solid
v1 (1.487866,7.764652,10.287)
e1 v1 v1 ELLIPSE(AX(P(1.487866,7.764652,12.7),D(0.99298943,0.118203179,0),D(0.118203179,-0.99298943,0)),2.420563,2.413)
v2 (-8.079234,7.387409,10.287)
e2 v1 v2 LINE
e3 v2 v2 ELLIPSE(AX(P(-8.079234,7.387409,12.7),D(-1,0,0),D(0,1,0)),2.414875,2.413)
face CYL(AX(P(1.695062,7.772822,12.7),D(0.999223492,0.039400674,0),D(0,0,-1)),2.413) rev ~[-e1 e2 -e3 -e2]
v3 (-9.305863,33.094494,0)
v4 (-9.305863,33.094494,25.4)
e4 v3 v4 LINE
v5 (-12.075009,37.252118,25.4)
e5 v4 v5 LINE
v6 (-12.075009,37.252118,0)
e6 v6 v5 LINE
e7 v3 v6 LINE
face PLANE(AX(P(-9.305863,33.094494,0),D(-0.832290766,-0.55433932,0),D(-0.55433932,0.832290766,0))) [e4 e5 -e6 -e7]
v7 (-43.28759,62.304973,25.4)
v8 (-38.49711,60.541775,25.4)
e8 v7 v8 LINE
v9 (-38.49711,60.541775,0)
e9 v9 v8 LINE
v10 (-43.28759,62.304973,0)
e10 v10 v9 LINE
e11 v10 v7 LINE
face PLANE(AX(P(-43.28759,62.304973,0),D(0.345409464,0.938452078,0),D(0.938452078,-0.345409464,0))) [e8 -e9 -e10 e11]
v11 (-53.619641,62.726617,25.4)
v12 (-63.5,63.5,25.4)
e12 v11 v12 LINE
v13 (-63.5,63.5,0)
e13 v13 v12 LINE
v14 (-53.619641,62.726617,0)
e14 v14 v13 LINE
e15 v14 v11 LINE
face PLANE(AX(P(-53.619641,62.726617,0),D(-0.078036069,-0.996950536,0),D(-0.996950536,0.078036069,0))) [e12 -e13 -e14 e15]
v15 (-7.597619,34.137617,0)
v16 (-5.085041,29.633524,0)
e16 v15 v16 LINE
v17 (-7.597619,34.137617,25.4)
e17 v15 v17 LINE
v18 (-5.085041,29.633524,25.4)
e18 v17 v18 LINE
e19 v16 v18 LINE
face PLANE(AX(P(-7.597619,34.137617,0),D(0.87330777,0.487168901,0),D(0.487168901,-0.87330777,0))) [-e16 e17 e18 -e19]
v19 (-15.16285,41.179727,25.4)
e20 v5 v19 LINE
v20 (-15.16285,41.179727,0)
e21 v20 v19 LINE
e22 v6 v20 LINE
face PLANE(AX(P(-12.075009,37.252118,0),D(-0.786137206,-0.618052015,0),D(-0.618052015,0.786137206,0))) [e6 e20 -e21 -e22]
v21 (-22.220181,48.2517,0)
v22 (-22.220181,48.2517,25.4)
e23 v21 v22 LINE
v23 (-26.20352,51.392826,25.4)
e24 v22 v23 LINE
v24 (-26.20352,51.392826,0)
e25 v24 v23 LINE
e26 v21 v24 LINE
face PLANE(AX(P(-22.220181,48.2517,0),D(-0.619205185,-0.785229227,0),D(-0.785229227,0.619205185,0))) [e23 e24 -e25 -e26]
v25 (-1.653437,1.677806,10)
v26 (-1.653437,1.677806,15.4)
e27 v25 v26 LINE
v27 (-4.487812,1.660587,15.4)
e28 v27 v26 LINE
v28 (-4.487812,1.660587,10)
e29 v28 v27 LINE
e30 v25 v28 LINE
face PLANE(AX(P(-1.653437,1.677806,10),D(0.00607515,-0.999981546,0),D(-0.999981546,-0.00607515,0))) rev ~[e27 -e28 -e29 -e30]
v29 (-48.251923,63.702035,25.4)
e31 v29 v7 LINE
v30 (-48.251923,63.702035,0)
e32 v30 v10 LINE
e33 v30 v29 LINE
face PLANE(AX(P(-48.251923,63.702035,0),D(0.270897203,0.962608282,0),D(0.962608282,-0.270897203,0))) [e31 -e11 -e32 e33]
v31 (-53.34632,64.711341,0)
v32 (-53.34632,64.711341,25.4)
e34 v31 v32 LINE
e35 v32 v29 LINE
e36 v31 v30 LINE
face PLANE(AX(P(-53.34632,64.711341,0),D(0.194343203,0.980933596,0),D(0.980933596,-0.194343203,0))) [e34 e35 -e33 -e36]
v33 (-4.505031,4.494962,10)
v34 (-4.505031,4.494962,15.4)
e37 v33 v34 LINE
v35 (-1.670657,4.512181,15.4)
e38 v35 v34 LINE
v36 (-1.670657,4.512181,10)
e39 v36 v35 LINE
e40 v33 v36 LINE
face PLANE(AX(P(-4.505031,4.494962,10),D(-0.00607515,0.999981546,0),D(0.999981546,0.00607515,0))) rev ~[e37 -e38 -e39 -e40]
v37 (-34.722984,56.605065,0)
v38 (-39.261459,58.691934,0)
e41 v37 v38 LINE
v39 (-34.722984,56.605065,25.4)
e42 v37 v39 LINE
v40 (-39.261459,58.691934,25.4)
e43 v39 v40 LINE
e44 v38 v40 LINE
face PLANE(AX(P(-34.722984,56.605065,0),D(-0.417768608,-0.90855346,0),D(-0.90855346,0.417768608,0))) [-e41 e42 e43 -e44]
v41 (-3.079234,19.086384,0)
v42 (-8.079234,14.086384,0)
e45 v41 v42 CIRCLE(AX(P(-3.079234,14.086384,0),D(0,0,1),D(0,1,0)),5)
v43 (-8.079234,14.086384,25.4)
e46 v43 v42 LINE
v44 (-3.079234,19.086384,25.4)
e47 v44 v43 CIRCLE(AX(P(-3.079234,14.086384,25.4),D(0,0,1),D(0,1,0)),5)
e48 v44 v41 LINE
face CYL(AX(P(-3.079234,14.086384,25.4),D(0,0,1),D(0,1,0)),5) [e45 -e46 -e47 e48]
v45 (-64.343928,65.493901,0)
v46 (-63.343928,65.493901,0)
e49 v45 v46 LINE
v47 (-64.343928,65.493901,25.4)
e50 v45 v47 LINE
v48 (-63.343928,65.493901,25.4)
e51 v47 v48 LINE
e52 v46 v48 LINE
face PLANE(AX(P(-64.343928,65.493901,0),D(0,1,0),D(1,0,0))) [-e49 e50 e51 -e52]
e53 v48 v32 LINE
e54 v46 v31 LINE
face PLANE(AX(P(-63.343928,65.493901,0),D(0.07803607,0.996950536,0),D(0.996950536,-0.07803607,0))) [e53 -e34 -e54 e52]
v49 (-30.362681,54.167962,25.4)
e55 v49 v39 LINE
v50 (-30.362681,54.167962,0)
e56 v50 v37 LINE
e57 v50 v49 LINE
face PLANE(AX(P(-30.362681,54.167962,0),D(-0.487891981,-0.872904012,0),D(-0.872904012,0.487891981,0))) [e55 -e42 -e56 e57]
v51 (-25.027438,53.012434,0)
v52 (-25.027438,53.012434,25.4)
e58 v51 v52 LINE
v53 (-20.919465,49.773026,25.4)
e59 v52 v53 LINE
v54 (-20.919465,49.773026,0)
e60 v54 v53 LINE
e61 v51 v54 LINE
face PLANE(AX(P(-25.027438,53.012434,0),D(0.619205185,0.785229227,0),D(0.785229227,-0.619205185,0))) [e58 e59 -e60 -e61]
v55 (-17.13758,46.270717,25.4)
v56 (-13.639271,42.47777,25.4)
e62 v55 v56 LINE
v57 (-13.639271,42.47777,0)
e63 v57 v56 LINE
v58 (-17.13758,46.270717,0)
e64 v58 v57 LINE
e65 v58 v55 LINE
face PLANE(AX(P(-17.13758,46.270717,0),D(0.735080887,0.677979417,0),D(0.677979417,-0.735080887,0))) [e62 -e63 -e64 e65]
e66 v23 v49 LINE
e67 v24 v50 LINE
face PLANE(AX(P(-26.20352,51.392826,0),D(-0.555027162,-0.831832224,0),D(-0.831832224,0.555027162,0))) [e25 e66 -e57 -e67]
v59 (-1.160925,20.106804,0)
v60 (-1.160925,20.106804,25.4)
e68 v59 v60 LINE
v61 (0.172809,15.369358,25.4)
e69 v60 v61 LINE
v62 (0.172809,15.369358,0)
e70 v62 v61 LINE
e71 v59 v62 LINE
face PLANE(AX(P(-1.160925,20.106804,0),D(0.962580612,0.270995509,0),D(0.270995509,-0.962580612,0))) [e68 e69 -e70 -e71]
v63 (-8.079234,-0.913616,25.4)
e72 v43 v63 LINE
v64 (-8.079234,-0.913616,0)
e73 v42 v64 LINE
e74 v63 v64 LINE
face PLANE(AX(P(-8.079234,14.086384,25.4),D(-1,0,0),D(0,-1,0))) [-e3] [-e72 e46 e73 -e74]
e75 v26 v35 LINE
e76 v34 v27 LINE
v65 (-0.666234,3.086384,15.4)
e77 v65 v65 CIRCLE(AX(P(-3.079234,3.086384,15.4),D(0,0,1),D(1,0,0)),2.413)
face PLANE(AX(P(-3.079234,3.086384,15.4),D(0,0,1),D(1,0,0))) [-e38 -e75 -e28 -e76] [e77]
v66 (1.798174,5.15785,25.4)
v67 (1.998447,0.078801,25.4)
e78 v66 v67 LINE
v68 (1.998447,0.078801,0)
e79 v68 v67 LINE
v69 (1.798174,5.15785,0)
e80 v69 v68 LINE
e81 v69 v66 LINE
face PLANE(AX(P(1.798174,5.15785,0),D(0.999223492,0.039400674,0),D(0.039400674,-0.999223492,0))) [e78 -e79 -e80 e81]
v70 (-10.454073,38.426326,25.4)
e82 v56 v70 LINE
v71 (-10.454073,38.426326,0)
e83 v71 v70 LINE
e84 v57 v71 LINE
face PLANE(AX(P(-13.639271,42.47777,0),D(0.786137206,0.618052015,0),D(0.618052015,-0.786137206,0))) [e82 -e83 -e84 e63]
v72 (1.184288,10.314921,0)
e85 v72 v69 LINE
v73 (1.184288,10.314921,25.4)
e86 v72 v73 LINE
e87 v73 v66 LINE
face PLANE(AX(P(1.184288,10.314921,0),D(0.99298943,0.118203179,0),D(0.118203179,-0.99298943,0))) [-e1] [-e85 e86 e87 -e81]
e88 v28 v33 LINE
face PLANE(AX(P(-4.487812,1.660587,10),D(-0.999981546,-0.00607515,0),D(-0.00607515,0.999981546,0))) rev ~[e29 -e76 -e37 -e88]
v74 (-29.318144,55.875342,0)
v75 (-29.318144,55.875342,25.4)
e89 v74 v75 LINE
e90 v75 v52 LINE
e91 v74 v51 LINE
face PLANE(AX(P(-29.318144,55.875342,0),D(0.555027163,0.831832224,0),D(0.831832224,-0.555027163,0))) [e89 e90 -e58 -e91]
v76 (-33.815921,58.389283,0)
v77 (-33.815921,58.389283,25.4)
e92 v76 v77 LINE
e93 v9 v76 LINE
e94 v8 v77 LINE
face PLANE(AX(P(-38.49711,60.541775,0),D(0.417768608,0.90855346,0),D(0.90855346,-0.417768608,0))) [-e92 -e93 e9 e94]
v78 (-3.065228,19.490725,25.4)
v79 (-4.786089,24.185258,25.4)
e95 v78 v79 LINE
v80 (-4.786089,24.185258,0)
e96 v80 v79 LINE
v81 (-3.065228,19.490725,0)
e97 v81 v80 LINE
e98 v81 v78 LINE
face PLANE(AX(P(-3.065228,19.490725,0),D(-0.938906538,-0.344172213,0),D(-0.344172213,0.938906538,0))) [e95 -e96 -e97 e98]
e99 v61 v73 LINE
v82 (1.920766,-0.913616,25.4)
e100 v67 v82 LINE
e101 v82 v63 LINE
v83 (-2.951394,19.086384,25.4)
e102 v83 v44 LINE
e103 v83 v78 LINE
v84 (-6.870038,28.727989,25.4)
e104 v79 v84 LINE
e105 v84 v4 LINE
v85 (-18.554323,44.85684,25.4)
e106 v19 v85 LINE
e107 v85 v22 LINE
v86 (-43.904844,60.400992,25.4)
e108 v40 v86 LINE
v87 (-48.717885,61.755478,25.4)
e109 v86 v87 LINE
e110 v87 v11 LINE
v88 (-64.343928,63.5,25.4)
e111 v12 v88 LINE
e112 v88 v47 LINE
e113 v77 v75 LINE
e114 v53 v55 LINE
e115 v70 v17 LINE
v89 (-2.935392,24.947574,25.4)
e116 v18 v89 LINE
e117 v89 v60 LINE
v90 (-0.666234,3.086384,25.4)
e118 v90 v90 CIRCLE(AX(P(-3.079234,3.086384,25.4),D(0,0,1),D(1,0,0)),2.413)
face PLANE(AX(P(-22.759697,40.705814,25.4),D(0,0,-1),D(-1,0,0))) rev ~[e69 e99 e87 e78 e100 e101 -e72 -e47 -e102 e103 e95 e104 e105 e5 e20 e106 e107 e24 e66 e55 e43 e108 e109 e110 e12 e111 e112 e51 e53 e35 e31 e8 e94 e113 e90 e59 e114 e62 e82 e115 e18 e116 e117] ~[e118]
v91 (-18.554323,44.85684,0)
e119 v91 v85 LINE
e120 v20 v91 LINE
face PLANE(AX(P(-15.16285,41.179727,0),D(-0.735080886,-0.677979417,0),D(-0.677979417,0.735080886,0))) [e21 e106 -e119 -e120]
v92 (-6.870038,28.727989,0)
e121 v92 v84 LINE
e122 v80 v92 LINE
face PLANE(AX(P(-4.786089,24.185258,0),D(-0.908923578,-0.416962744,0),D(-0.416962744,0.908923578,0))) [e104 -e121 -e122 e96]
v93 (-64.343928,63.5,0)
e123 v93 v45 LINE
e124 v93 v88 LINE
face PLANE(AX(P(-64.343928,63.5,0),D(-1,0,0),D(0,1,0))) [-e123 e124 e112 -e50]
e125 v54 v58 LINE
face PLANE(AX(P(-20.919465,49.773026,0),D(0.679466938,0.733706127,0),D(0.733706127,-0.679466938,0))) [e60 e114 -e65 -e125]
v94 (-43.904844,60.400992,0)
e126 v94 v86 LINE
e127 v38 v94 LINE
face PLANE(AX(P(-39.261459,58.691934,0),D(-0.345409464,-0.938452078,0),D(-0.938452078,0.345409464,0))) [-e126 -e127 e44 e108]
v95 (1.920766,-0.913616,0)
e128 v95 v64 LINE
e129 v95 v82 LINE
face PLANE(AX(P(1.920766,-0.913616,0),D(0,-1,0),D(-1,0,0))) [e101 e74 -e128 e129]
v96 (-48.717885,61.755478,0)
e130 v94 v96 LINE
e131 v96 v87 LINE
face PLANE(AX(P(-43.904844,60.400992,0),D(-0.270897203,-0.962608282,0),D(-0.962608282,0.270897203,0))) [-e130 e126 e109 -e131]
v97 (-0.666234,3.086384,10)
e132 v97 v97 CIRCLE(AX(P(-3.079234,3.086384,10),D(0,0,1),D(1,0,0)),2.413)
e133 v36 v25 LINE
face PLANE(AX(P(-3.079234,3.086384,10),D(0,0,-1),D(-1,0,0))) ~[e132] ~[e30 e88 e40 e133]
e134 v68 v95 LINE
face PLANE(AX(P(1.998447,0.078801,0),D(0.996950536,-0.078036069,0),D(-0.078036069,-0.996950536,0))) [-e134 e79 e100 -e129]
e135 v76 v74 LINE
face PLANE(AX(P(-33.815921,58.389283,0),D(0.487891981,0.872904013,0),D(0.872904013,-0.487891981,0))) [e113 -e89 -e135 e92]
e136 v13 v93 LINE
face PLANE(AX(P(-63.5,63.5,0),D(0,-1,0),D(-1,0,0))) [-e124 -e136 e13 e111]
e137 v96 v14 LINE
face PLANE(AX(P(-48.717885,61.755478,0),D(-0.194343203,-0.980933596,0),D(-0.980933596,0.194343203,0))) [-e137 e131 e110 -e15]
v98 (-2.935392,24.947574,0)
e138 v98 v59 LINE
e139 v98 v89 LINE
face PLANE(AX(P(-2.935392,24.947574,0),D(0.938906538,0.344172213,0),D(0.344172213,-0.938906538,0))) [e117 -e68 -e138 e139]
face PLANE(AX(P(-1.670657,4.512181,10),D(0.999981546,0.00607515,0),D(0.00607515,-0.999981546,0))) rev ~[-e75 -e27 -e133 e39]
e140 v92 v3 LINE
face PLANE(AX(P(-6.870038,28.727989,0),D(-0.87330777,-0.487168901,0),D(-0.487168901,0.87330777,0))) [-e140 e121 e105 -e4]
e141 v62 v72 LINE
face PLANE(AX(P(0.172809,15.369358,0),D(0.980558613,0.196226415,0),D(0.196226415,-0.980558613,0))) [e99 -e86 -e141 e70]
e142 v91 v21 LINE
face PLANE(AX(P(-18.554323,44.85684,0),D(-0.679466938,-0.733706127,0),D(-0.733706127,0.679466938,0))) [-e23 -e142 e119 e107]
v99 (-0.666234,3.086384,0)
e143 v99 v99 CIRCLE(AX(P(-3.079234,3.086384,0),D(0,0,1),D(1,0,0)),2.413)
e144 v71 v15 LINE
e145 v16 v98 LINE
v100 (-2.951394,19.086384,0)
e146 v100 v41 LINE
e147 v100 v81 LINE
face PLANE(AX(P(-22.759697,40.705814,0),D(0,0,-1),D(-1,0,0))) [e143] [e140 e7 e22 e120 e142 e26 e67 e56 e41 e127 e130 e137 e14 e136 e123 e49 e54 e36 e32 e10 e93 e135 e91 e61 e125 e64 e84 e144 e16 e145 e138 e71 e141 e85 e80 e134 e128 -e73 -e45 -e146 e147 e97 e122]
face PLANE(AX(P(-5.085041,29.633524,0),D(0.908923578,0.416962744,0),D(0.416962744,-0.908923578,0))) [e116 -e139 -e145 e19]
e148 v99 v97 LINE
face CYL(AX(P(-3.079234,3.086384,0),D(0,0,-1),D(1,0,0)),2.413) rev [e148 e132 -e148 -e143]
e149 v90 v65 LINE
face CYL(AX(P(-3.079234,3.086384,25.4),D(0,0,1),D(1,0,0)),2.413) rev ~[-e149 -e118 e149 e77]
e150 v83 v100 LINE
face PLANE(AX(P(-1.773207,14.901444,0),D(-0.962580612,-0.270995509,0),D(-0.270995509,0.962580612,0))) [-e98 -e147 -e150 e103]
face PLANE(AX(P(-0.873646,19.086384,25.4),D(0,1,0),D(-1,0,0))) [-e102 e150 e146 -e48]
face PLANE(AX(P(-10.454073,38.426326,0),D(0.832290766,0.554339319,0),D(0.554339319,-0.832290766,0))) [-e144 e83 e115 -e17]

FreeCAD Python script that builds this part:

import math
import FreeCAD as App
import Part
import Sketcher


def add_polygon(sketch, points):
    """Adds a closed chain of lines whose ends are joined by coincident constraints."""
    first, n = sketch.GeometryCount, len(points)
    for a, b in zip(points, points[1:] + points[:1]):
        sketch.addGeometry(Part.LineSegment(App.Vector(*a, 0), App.Vector(*b, 0)), False)
    for i in range(n):
        sketch.addConstraint(Sketcher.Constraint("Coincident", first + i, 2, first + (i + 1) % n, 1))

doc = App.newDocument("Part")
params = doc.addObject("Spreadsheet::Sheet", "Params")
for row, (alias, value) in enumerate([
    ("sketch1_width", "1 mm"),
    ("sketch1_length", "5 mm"),
    ("pad1_length", "25.4 mm"),
    ("sketch2_radius", "5 mm"),
    ("sketch2_width", "10 mm"),
    ("sketch2_height", "15 mm"),
    ("pad2_length", "25.4 mm"),
    ("pocket1_length", "10 mm"),
], start=1):
    params.set(f"A{row}", alias)
    params.set(f"B{row}", "=" + value)
    params.setAlias(f"B{row}", alias)

body = doc.addObject("PartDesign::Body", "Body")

sketch1 = body.newObject("Sketcher::SketchObject", "Sketch")
sketch1.AttachmentSupport = (doc.getObject("XY_Plane"), [""])
sketch1.MapMode = "FlatFace"
add_polygon(sketch1, [(-0.2, 5), (0, 0), (0, -0.9), (1.9, -0.9), (2, 0.1), (1.8, 5.2), (1.2, 10.3), (0.2, 15.4), (-1.2, 20.1), (-2.9, 24.9), (-5.1, 29.6), (-7.6, 34.1), (-10.5, 38.4), (-13.6, 42.5), (-17.1, 46.3), (-20.9, 49.8), (-25, 53), (-29.3, 55.9), (-33.8, 58.4), (-38.5, 60.5), (-43.3, 62.3), (-48.3, 63.7), (-53.3, 64.7), (-63.3, 65.5), (-64.3, 65.5), (-64.3, 63.5), (-63.5, 63.5), (-53.6, 62.7), (-48.7, 61.8), (-43.9, 60.4), (-39.3, 58.7), (-34.7, 56.6), (-30.4, 54.2), (-26.2, 51.4), (-22.2, 48.3), (-18.6, 44.9), (-15.2, 41.2), (-12.1, 37.3), (-9.3, 33.1), (-6.9, 28.7), (-4.8, 24.2), (-3.1, 19.5), (-1.8, 14.9), (-0.8, 10)])
sketch1.addConstraint([
    Sketcher.Constraint("Vertical", 1),
    Sketcher.Constraint("Horizontal", 2),
    Sketcher.Constraint("Horizontal", 23),
    Sketcher.Constraint("Vertical", 24),
    Sketcher.Constraint("Horizontal", 25),
    Sketcher.Constraint("Coincident", 0, 2, -1, 1),
    Sketcher.Constraint("Parallel", 0, 4),
    Sketcher.Constraint("Perpendicular", 3, 22),
    Sketcher.Constraint("Parallel", 22, 26),
    Sketcher.Constraint("Parallel", 21, 27),
    Sketcher.Constraint("Parallel", 20, 28),
    Sketcher.Constraint("Parallel", 19, 29),
    Sketcher.Constraint("Parallel", 18, 30),
    Sketcher.Constraint("Parallel", 17, 31),
    Sketcher.Constraint("Parallel", 16, 32),
    Sketcher.Constraint("Parallel", 15, 33),
    Sketcher.Constraint("Parallel", 14, 34),
    Sketcher.Constraint("Parallel", 13, 35),
    Sketcher.Constraint("Parallel", 12, 36),
    Sketcher.Constraint("Parallel", 11, 37),
    Sketcher.Constraint("Parallel", 10, 38),
    Sketcher.Constraint("Parallel", 9, 39),
    Sketcher.Constraint("Parallel", 8, 40),
    Sketcher.Constraint("Parallel", 7, 41),
    Sketcher.Constraint("Parallel", 6, 42),
    Sketcher.Constraint("Parallel", 5, 43),
    Sketcher.Constraint("Equal", 28, 32),
    Sketcher.Constraint("Equal", 32, 40),
    Sketcher.Constraint("DistanceX", 23, 2, 23, 1, 1.0),
    Sketcher.Constraint("Distance", 28, 5.0),
    Sketcher.Constraint("DistanceY", -1, 1, 42, 2, 10.0),
    Sketcher.Constraint("DistanceY", -1, 1, 43, 2, 5.0),
    Sketcher.Constraint("DistanceY", -1, 1, 24, 2, 63.5),
    Sketcher.Constraint("DistanceX", 25, 2, -1, 1, 63.5),
    Sketcher.Constraint("DistanceY", 24, 2, 24, 1, 1.993901),
    Sketcher.Constraint("DistanceY", 16, 2, 21, 2, 8.835999),
    Sketcher.Constraint("Distance", 37, 4.995399),
    Sketcher.Constraint("Distance", 43, 5.0353),
    Sketcher.Constraint("DistanceY", -1, 1, 3, 2, 0.078801),
    Sketcher.Constraint("DistanceY", -1, 1, 33, 2, 48.2517),
    Sketcher.Constraint("DistanceX", 7, 2, 4, 2, 2.959098),
    Sketcher.Constraint("DistanceX", 8, 2, 6, 2, 3.108201),
    Sketcher.Constraint("DistanceX", 12, 2, 11, 2, 3.185198),
    Sketcher.Constraint("DistanceY", 10, 2, 13, 2, 12.1331),
    Sketcher.Constraint("DistanceY", 11, 2, 14, 2, 11.3467),
    Sketcher.Constraint("DistanceY", 18, 2, 19, 2, 1.763198),
    Sketcher.Constraint("DistanceY", 15, 2, 20, 2, 10.689601),
    Sketcher.Constraint("DistanceX", 21, 2, 17, 2, 19.530399),
    Sketcher.Constraint("DistanceY", 14, 2, 32, 2, 1.6198),
    Sketcher.Constraint("DistanceX", 33, 2, 13, 2, 5.082601),
    Sketcher.Constraint("DistanceX", 31, 2, 33, 2, 8.1425),
    Sketcher.Constraint("DistanceY", 11, 2, 35, 2, 2.753401),
    Sketcher.Constraint("DistanceY", 10, 2, 36, 2, 3.114501),
    Sketcher.Constraint("Distance", 5, 5.19348),
    Sketcher.Constraint("Distance", 6, 5.15465),
    Sketcher.Constraint("Distance", 7, 4.921609),
    Sketcher.Constraint("Distance", 10, 5.15751),
    Sketcher.Constraint("Distance", 12, 5.153609),
    Sketcher.Constraint("Distance", 15, 5.231559),
    Sketcher.Constraint("Distance", 16, 5.158139),
    Sketcher.Constraint("Distance", 17, 5.152659),
    Sketcher.Constraint("Distance", 19, 5.104661),
    Sketcher.Constraint("Distance", 20, 5.157168),
    Sketcher.Constraint("Distance", 22, 10.028188),
    Sketcher.Constraint("Distance", 26, 9.910581),
    Sketcher.Constraint("Distance", 27, 4.997032),
    Sketcher.Constraint("Distance", 29, 4.947918),
    Sketcher.Constraint("Distance", 31, 4.99517),
    Sketcher.Constraint("Distance", 38, 4.999961),
    Sketcher.Constraint("DistanceX", 2, 1, 2, 2, 1.920766),
    Sketcher.Constraint("DistanceX", 25, 1, 25, 2, 0.843928),
    Sketcher.Constraint("DistanceY", 1, 2, 1, 1, 0.913616),
    Sketcher.Constraint("DistanceY", -1, 1, 4, 2, 5.15785),
    Sketcher.Constraint("DistanceX", -1, 1, 6, 2, 0.172809),
    Sketcher.Constraint("DistanceX", 9, 2, -1, 1, 5.085041),
    Sketcher.Constraint("DistanceX", 10, 2, -1, 1, 7.597619),
    Sketcher.Constraint("DistanceX", 12, 2, -1, 1, 13.639271),
    Sketcher.Constraint("DistanceY", -1, 1, 12, 2, 42.47777),
    Sketcher.Constraint("DistanceX", 13, 2, -1, 1, 17.13758),
    Sketcher.Constraint("DistanceY", -1, 1, 16, 2, 55.875342),
    Sketcher.Constraint("DistanceX", 18, 2, -1, 1, 38.49711),
    Sketcher.Constraint("DistanceY", -1, 1, 27, 2, 61.755478),
    Sketcher.Constraint("DistanceY", -1, 1, 34, 2, 44.85684),
    Sketcher.Constraint("DistanceX", 35, 2, -1, 1, 15.16285),
    Sketcher.Constraint("DistanceX", 39, 2, -1, 1, 4.786089),
    Sketcher.Constraint("DistanceX", 40, 2, -1, 1, 3.065228),
    Sketcher.Constraint("DistanceX", 5, 2, 3, 2, 0.814159),
])
sketch1.setExpression("Constraints[72]", "Params.sketch1_width")
sketch1.setExpression("Constraints[73]", "Params.sketch1_length")
pad1 = body.newObject("PartDesign::Pad", "Pad")
pad1.Profile = sketch1
pad1.setExpression("Length", "Params.pad1_length")

sketch2 = body.newObject("Sketcher::SketchObject", "Sketch001")
sketch2.AttachmentSupport = (doc.getObject("XY_Plane"), [""])
sketch2.MapMode = "FlatFace"
sketch2.AttachmentOffset = App.Placement(App.Vector(0, 0, 25.4), App.Rotation())
sketch2.addGeometry([
    Part.LineSegment(App.Vector(1.9, -0.9, 0), App.Vector(2, 0.1, 0)),
    Part.LineSegment(App.Vector(2, 0.1, 0), App.Vector(1.8, 5.2, 0)),
    Part.LineSegment(App.Vector(1.8, 5.2, 0), App.Vector(0.2, 15.4, 0)),
    Part.LineSegment(App.Vector(0.2, 15.4, 0), App.Vector(-0.9, 19.1, 0)),
    Part.LineSegment(App.Vector(-0.9, 19.1, 0), App.Vector(-3.1, 19.1, 0)),
    Part.ArcOfCircle(Part.Circle(App.Vector(-3.1, 14.1, 0), App.Vector(0, 0, 1), 5), math.radians(90), math.radians(180)),
    Part.LineSegment(App.Vector(-8.1, 14.1, 0), App.Vector(-8.1, -0.9, 0)),
    Part.LineSegment(App.Vector(-8.1, -0.9, 0), App.Vector(1.9, -0.9, 0)),
], False)
sketch2.addConstraint([
    Sketcher.Constraint("Coincident", 0, 2, 1, 1),
    Sketcher.Constraint("Coincident", 1, 2, 2, 1),
    Sketcher.Constraint("Coincident", 2, 2, 3, 1),
    Sketcher.Constraint("Coincident", 3, 2, 4, 1),
    Sketcher.Constraint("Tangent", 4, 2, 5, 1),
    Sketcher.Constraint("Tangent", 5, 2, 6, 1),
    Sketcher.Constraint("Coincident", 6, 2, 7, 1),
    Sketcher.Constraint("Coincident", 7, 2, 0, 1),
    Sketcher.Constraint("Horizontal", 4),
    Sketcher.Constraint("Vertical", 6),
    Sketcher.Constraint("Horizontal", 7),
    Sketcher.Constraint("Radius", 5, 5.0),
    Sketcher.Constraint("DistanceX", 7, 1, 7, 2, 10.0),
    Sketcher.Constraint("DistanceY", 6, 2, 6, 1, 15.0),
    Sketcher.Constraint("DistanceX", 4, 2, 4, 1, 2.205588),
    Sketcher.Constraint("DistanceY", -1, 1, 0, 2, 0.078801),
    Sketcher.Constraint("Distance", 3, 3.861522),
    Sketcher.Constraint("DistanceY", -1, 1, 1, 2, 5.15785),
    Sketcher.Constraint("DistanceX", -1, 1, 2, 2, 0.172809),
    Sketcher.Constraint("DistanceX", 5, 3, 0, 2, 5.077681),
    Sketcher.Constraint("DistanceX", 3, 2, 1, 2, 2.671819),
    Sketcher.Constraint("Distance", 0, 0.995453),
    Sketcher.Constraint("Distance", 2, 10.340053),
])
sketch2.setExpression("Constraints[11]", "Params.sketch2_radius")
sketch2.setExpression("Constraints[12]", "Params.sketch2_width")
sketch2.setExpression("Constraints[13]", "Params.sketch2_height")
pad2 = body.newObject("PartDesign::Pad", "Pad001")
pad2.Profile = sketch2
pad2.setExpression("Length", "Params.pad2_length")
pad2.Reversed = True

sketch3 = body.newObject("Sketcher::SketchObject", "Sketch002")
sketch3.AttachmentSupport = (doc.getObject("XY_Plane"), [""])
sketch3.MapMode = "FlatFace"
sketch3.AttachmentOffset = App.Placement(App.Vector(0, 0, 25.4), App.Rotation())
sketch3.addGeometry(Part.Circle(App.Vector(-3.1, 3.1, 0), App.Vector(0, 0, 1), 2.4), False)
sketch3.addConstraint([
    Sketcher.Constraint("Diameter", 0, 4.826),
    Sketcher.Constraint("DistanceX", 0, 3, -1, 1, 3.079234),
    Sketcher.Constraint("DistanceY", -1, 1, 0, 3, 3.086384),
])
pocket1 = body.newObject("PartDesign::Pocket", "Pocket")
pocket1.Profile = sketch3
pocket1.setExpression("Length", "Params.pocket1_length")

sketch4 = body.newObject("Sketcher::SketchObject", "Sketch003")
sketch4.Placement = App.Placement(App.Vector(1.998447, 0.078801, 0), App.Rotation(App.Vector(0, 0, -1), App.Vector(-0.039400674, 0.999223492, 0), App.Vector(0.999223492, 0.039400674, 0), "ZXY"))
sketch4.addGeometry(Part.Circle(App.Vector(-12.7, 7.7, 0), App.Vector(0, 0, 1), 2.4), False)
sketch4.addConstraint([
    Sketcher.Constraint("Diameter", 0, 4.826),
    Sketcher.Constraint("DistanceX", 0, 3, -1, 1, 12.7),
    Sketcher.Constraint("DistanceY", -1, 1, 0, 3, 7.7),
])
pocket2 = body.newObject("PartDesign::Pocket", "Pocket001")
pocket2.Profile = sketch4
pocket2.Type = "ThroughAll"
doc.recompute()

datumplane = body.newObject("PartDesign::Plane", "DatumPlane")
datumplane.AttachmentSupport = (doc.getObject("XY_Plane"), [""])
datumplane.MapMode = "FlatFace"
datumplane.AttachmentOffset = App.Placement(App.Vector(0, 0, 12.7), App.Rotation())
mirrored = body.newObject("PartDesign::Mirrored", "Mirrored")
mirrored.Originals = [pocket1]
mirrored.MirrorPlane = (datumplane, [""])
body.Tip = mirrored

sketch5 = body.newObject("Sketcher::SketchObject", "Sketch004")
sketch5.AttachmentSupport = (doc.getObject("XY_Plane"), [""])
sketch5.MapMode = "FlatFace"
sketch5.AttachmentOffset = App.Placement(App.Vector(0, 0, 10), App.Rotation())
add_polygon(sketch5, [(-4.5, 1.7), (-4.5, 4.5), (-1.7, 4.5), (-1.7, 1.7)])
sketch5.addConstraint([
    Sketcher.Constraint("Perpendicular", 0, 1),
    Sketcher.Constraint("Perpendicular", 1, 2),
    Sketcher.Constraint("Perpendicular", 2, 3),
    Sketcher.Constraint("Equal", 0, 1),
    Sketcher.Constraint("DistanceX", 0, 2, -1, 1, 4.505031),
    Sketcher.Constraint("DistanceY", -1, 1, 0, 2, 4.494962),
    Sketcher.Constraint("DistanceY", -1, 1, 1, 2, 4.512181),
    Sketcher.Constraint("Distance", 0, 2.834427),
])
pocket3 = body.newObject("PartDesign::Pocket", "Pocket002")
pocket3.Profile = sketch5
pocket3.Type = "ThroughAll"
pocket3.Reversed = True

doc.recompute()
